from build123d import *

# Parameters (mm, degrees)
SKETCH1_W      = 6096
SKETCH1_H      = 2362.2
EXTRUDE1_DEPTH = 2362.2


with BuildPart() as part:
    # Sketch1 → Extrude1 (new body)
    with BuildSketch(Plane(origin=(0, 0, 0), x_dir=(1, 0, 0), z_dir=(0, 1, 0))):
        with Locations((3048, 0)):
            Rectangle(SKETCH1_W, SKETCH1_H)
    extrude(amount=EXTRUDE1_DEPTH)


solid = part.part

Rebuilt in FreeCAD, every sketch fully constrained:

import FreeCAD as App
import Part
import Sketcher
from FreeCAD import Vector
Q = App.Units.Quantity


def add_polygon(sketch, points):
    """Adds a closed chain of lines whose ends are joined by coincident constraints."""
    first, n = sketch.GeometryCount, len(points)
    for a, b in zip(points, points[1:] + points[:1]):
        sketch.addGeometry(Part.LineSegment(App.Vector(*a, 0), App.Vector(*b, 0)), False)
    for i in range(n):
        sketch.addConstraint(Sketcher.Constraint("Coincident", first + i, 2, first + (i + 1) % n, 1))

doc = App.newDocument("Part")
params = doc.addObject("Spreadsheet::Sheet", "Params")
for row, (alias, value) in enumerate([
    ("sketch1_width", "240 in"),
    ("sketch1_height", "93 in"),
    ("pad1_length", "93 in"),
], start=1):
    params.set(f"A{row}", alias)
    params.set(f"B{row}", "=" + value)
    params.setAlias(f"B{row}", alias)

body = doc.addObject("PartDesign::Body", "Body")

sketch1 = doc.addObject("Sketcher::SketchObject", "Sketch")
body.addObject(sketch1)
sketch1.AttachmentSupport = (doc.XZ_Plane, [""])
sketch1.MapMode = "FlatFace"
add_polygon(sketch1, [(0, -1181.1), (0, 1181.1), (6096, 1181.1), (6096, -1181.1)])
sketch1.addConstraint([
    Sketcher.Constraint("Vertical", 0),
    Sketcher.Constraint("Horizontal", 1),
    Sketcher.Constraint("Vertical", 2),
    Sketcher.Constraint("Horizontal", 3),
    Sketcher.Constraint("Symmetric", 0, 2, 3, 2, -1, 1),
    Sketcher.Constraint("DistanceX", 1, 1, 1, 2, Q("240 in")),
    Sketcher.Constraint("DistanceY", 0, 1, 0, 2, Q("93 in")),
])
sketch1.setExpression("Constraints[9]", "Params.sketch1_width")
sketch1.setExpression("Constraints[10]", "Params.sketch1_height")
pad1 = doc.addObject("PartDesign::Pad", "Pad")
body.addObject(pad1)
pad1.Profile = sketch1
pad1.setExpression("Length", "Params.pad1_length")
pad1.Reversed = True

doc.recompute()
